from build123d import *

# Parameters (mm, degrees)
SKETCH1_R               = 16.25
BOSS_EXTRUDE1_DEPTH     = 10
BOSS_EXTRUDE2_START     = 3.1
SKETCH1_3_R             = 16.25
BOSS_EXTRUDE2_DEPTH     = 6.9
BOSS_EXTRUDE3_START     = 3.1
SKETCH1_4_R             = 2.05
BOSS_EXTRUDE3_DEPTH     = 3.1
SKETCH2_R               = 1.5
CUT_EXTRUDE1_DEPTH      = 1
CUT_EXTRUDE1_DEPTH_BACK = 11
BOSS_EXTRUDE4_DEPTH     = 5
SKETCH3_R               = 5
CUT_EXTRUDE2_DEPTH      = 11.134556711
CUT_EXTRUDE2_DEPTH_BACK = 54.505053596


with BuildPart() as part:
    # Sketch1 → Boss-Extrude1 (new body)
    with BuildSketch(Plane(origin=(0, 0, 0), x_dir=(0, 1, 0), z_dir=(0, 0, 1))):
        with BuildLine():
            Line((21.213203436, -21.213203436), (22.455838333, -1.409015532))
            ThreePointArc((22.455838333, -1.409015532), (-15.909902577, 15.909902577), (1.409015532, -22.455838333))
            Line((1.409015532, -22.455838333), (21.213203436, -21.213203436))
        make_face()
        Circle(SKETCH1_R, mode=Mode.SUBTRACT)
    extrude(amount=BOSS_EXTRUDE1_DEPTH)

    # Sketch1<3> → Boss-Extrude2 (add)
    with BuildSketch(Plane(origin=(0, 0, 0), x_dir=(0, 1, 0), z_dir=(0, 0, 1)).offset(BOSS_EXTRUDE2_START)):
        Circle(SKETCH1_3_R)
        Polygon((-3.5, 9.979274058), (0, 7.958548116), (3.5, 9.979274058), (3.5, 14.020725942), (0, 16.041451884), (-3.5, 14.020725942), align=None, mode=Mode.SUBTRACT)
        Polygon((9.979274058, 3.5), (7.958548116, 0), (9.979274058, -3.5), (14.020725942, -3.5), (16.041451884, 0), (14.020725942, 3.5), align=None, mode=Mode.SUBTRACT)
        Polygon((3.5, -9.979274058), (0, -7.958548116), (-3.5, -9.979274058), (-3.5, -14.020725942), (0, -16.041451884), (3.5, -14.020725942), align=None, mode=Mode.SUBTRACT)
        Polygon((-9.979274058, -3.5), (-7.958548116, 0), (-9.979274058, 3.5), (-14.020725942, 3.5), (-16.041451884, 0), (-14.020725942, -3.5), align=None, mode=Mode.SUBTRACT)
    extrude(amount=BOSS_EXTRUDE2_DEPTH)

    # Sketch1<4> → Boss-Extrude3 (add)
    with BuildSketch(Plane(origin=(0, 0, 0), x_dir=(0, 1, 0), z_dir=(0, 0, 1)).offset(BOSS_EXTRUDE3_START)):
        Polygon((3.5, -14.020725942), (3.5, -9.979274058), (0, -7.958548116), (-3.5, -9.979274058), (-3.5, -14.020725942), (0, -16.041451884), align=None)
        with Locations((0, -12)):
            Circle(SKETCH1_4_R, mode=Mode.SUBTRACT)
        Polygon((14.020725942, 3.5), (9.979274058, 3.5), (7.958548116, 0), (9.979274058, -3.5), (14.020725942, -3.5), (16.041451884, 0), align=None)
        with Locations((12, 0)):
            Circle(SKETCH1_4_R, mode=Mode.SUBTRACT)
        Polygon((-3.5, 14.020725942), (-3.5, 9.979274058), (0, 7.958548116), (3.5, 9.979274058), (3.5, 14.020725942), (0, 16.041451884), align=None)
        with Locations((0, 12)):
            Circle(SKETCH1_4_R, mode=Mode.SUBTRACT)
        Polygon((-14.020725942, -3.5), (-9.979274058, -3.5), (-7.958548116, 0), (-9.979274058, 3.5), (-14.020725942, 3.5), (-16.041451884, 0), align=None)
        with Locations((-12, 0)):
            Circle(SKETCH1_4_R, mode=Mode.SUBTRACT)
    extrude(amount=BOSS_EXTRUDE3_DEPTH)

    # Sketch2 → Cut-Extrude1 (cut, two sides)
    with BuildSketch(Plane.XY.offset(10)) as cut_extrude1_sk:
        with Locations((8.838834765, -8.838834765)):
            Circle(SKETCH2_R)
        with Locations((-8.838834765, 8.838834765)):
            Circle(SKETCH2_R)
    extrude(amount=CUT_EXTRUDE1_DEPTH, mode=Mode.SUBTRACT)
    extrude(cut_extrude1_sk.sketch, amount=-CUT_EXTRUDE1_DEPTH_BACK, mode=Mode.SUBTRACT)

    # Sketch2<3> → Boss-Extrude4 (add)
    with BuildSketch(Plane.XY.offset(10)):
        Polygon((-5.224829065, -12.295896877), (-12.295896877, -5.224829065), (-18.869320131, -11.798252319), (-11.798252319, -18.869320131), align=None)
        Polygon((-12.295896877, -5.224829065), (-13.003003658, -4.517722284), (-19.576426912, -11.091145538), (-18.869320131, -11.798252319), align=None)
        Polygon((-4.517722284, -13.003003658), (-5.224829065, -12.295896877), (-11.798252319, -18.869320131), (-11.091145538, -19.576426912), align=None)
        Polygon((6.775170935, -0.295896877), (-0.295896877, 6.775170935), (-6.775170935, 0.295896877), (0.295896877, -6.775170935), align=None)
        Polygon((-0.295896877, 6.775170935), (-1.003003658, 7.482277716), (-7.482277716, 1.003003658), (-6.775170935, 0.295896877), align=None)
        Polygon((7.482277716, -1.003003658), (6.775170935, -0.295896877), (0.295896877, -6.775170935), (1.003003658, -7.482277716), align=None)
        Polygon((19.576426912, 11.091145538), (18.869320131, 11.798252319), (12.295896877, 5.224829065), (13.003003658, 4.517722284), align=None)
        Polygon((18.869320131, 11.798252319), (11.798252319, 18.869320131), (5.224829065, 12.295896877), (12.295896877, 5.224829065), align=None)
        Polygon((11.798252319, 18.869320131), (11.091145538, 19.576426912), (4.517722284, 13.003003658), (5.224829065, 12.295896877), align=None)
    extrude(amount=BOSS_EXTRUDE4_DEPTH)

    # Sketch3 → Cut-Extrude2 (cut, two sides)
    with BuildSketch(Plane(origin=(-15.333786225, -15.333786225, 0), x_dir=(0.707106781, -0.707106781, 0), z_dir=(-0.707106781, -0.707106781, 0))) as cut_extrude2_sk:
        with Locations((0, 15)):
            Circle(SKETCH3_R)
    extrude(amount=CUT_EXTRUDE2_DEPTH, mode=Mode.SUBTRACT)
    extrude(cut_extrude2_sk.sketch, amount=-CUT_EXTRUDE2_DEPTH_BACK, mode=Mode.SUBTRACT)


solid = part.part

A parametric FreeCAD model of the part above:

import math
import FreeCAD as App
import Part
import Sketcher
from FreeCAD import Vector
Q = App.Units.Quantity

doc = App.newDocument("Part")
body = doc.addObject("PartDesign::Body", "Body")

# Sketch on XY plane
sketch1 = doc.addObject("Sketcher::SketchObject", "Sketch")
body.addObject(sketch1)
sketch1.AttachmentSupport = (doc.XY_Plane, [""])
sketch1.MapMode = "FlatFace"
sketch1.addGeometry(Part.LineSegment(Vector(21.213203, 21.213203, 0), Vector(1.409016, 22.455838, 0)), False)
sketch1.addGeometry(Part.ArcOfCircle(Part.Circle(Vector(0, 0, 0), Vector(0, 0, 1), 22.5), math.radians(86.409622), math.radians(363.590378)), False)
sketch1.addGeometry(Part.LineSegment(Vector(22.455838, 1.409016, 0), Vector(21.213203, 21.213203, 0)), False)
sketch1.addGeometry(Part.Circle(Vector(0, 0, 0), Vector(0, 0, 1), 16.25), False)
sketch1.addConstraint(Sketcher.Constraint("Tangent", 0, 2, 1, 1))
sketch1.addConstraint(Sketcher.Constraint("Tangent", 1, 2, 2, 1))
sketch1.addConstraint(Sketcher.Constraint("Coincident", 2, 2, 0, 1))
sketch1.addConstraint(Sketcher.Constraint("Coincident", 1, 3, -1, 1))
sketch1.addConstraint(Sketcher.Constraint("Coincident", 3, 3, -1, 1))
sketch1.addConstraint(Sketcher.Constraint("Diameter", 3, 32.5))
sketch1.addConstraint(Sketcher.Constraint("Radius", 1, 22.5))
sketch1.addConstraint(Sketcher.Constraint("DistanceY", -1, 1, 0, 2, 22.455838))
sketch1.addConstraint(Sketcher.Constraint("DistanceX", -1, 1, 1, 2, 22.455838))
pad1 = doc.addObject("PartDesign::Pad", "Pad")
body.addObject(pad1)
pad1.Profile = sketch1
pad1.Length = 10

# Sketch on XY plane
sketch2 = doc.addObject("Sketcher::SketchObject", "Sketch001")
body.addObject(sketch2)
sketch2.AttachmentSupport = (doc.XY_Plane, [""])
sketch2.MapMode = "FlatFace"
sketch2.AttachmentOffset = App.Placement(Vector(0, 0, 3.1), App.Rotation())
sketch2.addGeometry(Part.Circle(Vector(0, 0, 0), Vector(0, 0, 1), 16.25), False)
sketch2.addGeometry(Part.LineSegment(Vector(7.958548, 0, 0), Vector(9.979274, 3.5, 0)), False)
sketch2.addGeometry(Part.LineSegment(Vector(9.979274, 3.5, 0), Vector(14.020726, 3.5, 0)), False)
sketch2.addGeometry(Part.LineSegment(Vector(14.020726, 3.5, 0), Vector(16.041452, 0, 0)), False)
sketch2.addGeometry(Part.LineSegment(Vector(16.041452, 0, 0), Vector(14.020726, -3.5, 0)), False)
sketch2.addGeometry(Part.LineSegment(Vector(14.020726, -3.5, 0), Vector(9.979274, -3.5, 0)), False)
sketch2.addGeometry(Part.LineSegment(Vector(9.979274, -3.5, 0), Vector(7.958548, 0, 0)), False)
sketch2.addGeometry(Part.LineSegment(Vector(0, -7.958548, 0), Vector(3.5, -9.979274, 0)), False)
sketch2.addGeometry(Part.LineSegment(Vector(3.5, -9.979274, 0), Vector(3.5, -14.020726, 0)), False)
sketch2.addGeometry(Part.LineSegment(Vector(3.5, -14.020726, 0), Vector(0, -16.041452, 0)), False)
sketch2.addGeometry(Part.LineSegment(Vector(0, -16.041452, 0), Vector(-3.5, -14.020726, 0)), False)
sketch2.addGeometry(Part.LineSegment(Vector(-3.5, -14.020726, 0), Vector(-3.5, -9.979274, 0)), False)
sketch2.addGeometry(Part.LineSegment(Vector(-3.5, -9.979274, 0), Vector(0, -7.958548, 0)), False)
sketch2.addGeometry(Part.LineSegment(Vector(-7.958548, 0, 0), Vector(-9.979274, -3.5, 0)), False)
sketch2.addGeometry(Part.LineSegment(Vector(-9.979274, -3.5, 0), Vector(-14.020726, -3.5, 0)), False)
sketch2.addGeometry(Part.LineSegment(Vector(-14.020726, -3.5, 0), Vector(-16.041452, 0, 0)), False)
sketch2.addGeometry(Part.LineSegment(Vector(-16.041452, 0, 0), Vector(-14.020726, 3.5, 0)), False)
sketch2.addGeometry(Part.LineSegment(Vector(-14.020726, 3.5, 0), Vector(-9.979274, 3.5, 0)), False)
sketch2.addGeometry(Part.LineSegment(Vector(-9.979274, 3.5, 0), Vector(-7.958548, 0, 0)), False)
sketch2.addGeometry(Part.LineSegment(Vector(0, 7.958548, 0), Vector(-3.5, 9.979274, 0)), False)
sketch2.addGeometry(Part.LineSegment(Vector(-3.5, 9.979274, 0), Vector(-3.5, 14.020726, 0)), False)
sketch2.addGeometry(Part.LineSegment(Vector(-3.5, 14.020726, 0), Vector(0, 16.041452, 0)), False)
sketch2.addGeometry(Part.LineSegment(Vector(0, 16.041452, 0), Vector(3.5, 14.020726, 0)), False)
sketch2.addGeometry(Part.LineSegment(Vector(3.5, 14.020726, 0), Vector(3.5, 9.979274, 0)), False)
sketch2.addGeometry(Part.LineSegment(Vector(3.5, 9.979274, 0), Vector(0, 7.958548, 0)), False)
sketch2.addConstraint(Sketcher.Constraint("Coincident", 1, 2, 2, 1))
sketch2.addConstraint(Sketcher.Constraint("Coincident", 2, 2, 3, 1))
sketch2.addConstraint(Sketcher.Constraint("Coincident", 3, 2, 4, 1))
sketch2.addConstraint(Sketcher.Constraint("Coincident", 4, 2, 5, 1))
sketch2.addConstraint(Sketcher.Constraint("Coincident", 5, 2, 6, 1))
sketch2.addConstraint(Sketcher.Constraint("Coincident", 6, 2, 1, 1))
sketch2.addConstraint(Sketcher.Constraint("Coincident", 7, 2, 8, 1))
sketch2.addConstraint(Sketcher.Constraint("Coincident", 8, 2, 9, 1))
sketch2.addConstraint(Sketcher.Constraint("Coincident", 9, 2, 10, 1))
sketch2.addConstraint(Sketcher.Constraint("Coincident", 10, 2, 11, 1))
sketch2.addConstraint(Sketcher.Constraint("Coincident", 11, 2, 12, 1))
sketch2.addConstraint(Sketcher.Constraint("Coincident", 12, 2, 7, 1))
sketch2.addConstraint(Sketcher.Constraint("Coincident", 13, 2, 14, 1))
sketch2.addConstraint(Sketcher.Constraint("Coincident", 14, 2, 15, 1))
sketch2.addConstraint(Sketcher.Constraint("Coincident", 15, 2, 16, 1))
sketch2.addConstraint(Sketcher.Constraint("Coincident", 16, 2, 17, 1))
sketch2.addConstraint(Sketcher.Constraint("Coincident", 17, 2, 18, 1))
sketch2.addConstraint(Sketcher.Constraint("Coincident", 18, 2, 13, 1))
sketch2.addConstraint(Sketcher.Constraint("Coincident", 19, 2, 20, 1))
sketch2.addConstraint(Sketcher.Constraint("Coincident", 20, 2, 21, 1))
sketch2.addConstraint(Sketcher.Constraint("Coincident", 21, 2, 22, 1))
sketch2.addConstraint(Sketcher.Constraint("Coincident", 22, 2, 23, 1))
sketch2.addConstraint(Sketcher.Constraint("Coincident", 23, 2, 24, 1))
sketch2.addConstraint(Sketcher.Constraint("Coincident", 24, 2, 19, 1))
sketch2.addConstraint(Sketcher.Constraint("Horizontal", 2))
sketch2.addConstraint(Sketcher.Constraint("Horizontal", 5))
sketch2.addConstraint(Sketcher.Constraint("Vertical", 8))
sketch2.addConstraint(Sketcher.Constraint("Vertical", 11))
sketch2.addConstraint(Sketcher.Constraint("Horizontal", 14))
sketch2.addConstraint(Sketcher.Constraint("Horizontal", 17))
sketch2.addConstraint(Sketcher.Constraint("Vertical", 20))
sketch2.addConstraint(Sketcher.Constraint("Vertical", 23))
sketch2.addConstraint(Sketcher.Constraint("Coincident", 0, 3, -1, 1))
sketch2.addConstraint(Sketcher.Constraint("Symmetric", 1, 2, 13, 2, -1, 1))
sketch2.addConstraint(Sketcher.Constraint("Symmetric", 3, 2, 15, 2, -1, 1))
sketch2.addConstraint(Sketcher.Constraint("Symmetric", 4, 2, 16, 2, -1, 1))
sketch2.addConstraint(Sketcher.Constraint("Symmetric", 6, 2, 18, 2, -1, 1))
sketch2.addConstraint(Sketcher.Constraint("Symmetric", 7, 2, 19, 2, -1, 1))
sketch2.addConstraint(Sketcher.Constraint("Symmetric", 9, 2, 21, 2, -1, 1))
sketch2.addConstraint(Sketcher.Constraint("Symmetric", 10, 2, 22, 2, -1, 1))
sketch2.addConstraint(Sketcher.Constraint("Symmetric", 12, 2, 24, 2, -1, 1))
sketch2.addConstraint(Sketcher.Constraint("Symmetric", 8, 2, 10, 2, -2))
sketch2.addConstraint(Sketcher.Constraint("Symmetric", 5, 2, 13, 2, -2))
sketch2.addConstraint(Sketcher.Constraint("PointOnObject", 3, 2, -1))
sketch2.addConstraint(Sketcher.Constraint("PointOnObject", 6, 2, -1))
sketch2.addConstraint(Sketcher.Constraint("PointOnObject", 9, 2, -2))
sketch2.addConstraint(Sketcher.Constraint("PointOnObject", 12, 2, -2))
sketch2.addConstraint(Sketcher.Constraint("Parallel", 1, 4))
sketch2.addConstraint(Sketcher.Constraint("Parallel", 3, 6))
sketch2.addConstraint(Sketcher.Constraint("Perpendicular", 4, 7))
sketch2.addConstraint(Sketcher.Constraint("Perpendicular", 6, 9))
sketch2.addConstraint(Sketcher.Constraint("Parallel", 9, 12))
sketch2.addConstraint(Sketcher.Constraint("Perpendicular", 12, 15))
sketch2.addConstraint(Sketcher.Constraint("Parallel", 15, 18))
sketch2.addConstraint(Sketcher.Constraint("Perpendicular", 18, 21))
sketch2.addConstraint(Sketcher.Constraint("Parallel", 21, 24))
sketch2.addConstraint(Sketcher.Constraint("Equal", 17, 8))
sketch2.addConstraint(Sketcher.Constraint("Equal", 6, 7))
sketch2.addConstraint(Sketcher.Constraint("Diameter", 0, 32.5))
sketch2.addConstraint(Sketcher.Constraint("Angle", 1, Q("60 deg")))
sketch2.addConstraint(Sketcher.Constraint("DistanceY", 4, 2, 2, 2, 7.0))
sketch2.addConstraint(Sketcher.Constraint("DistanceX", 2, 1, 2, 2, 4.041452))
sketch2.addConstraint(Sketcher.Constraint("DistanceX", -1, 1, 3, 2, 16.041452))
sketch2.addConstraint(Sketcher.Constraint("DistanceY", 9, 2, -1, 1, 16.041452))
pad2 = doc.addObject("PartDesign::Pad", "Pad001")
body.addObject(pad2)
pad2.Profile = sketch2
pad2.Length = 6.9

# Sketch on XY plane
sketch3 = doc.addObject("Sketcher::SketchObject", "Sketch002")
body.addObject(sketch3)
sketch3.AttachmentSupport = (doc.XY_Plane, [""])
sketch3.MapMode = "FlatFace"
sketch3.AttachmentOffset = App.Placement(Vector(0, 0, 3.1), App.Rotation())
sketch3.addGeometry(Part.LineSegment(Vector(14.020726, 3.5, 0), Vector(9.979274, 3.5, 0)), False)
sketch3.addGeometry(Part.LineSegment(Vector(9.979274, 3.5, 0), Vector(7.958548, 0, 0)), False)
sketch3.addGeometry(Part.LineSegment(Vector(7.958548, 0, 0), Vector(9.979274, -3.5, 0)), False)
sketch3.addGeometry(Part.LineSegment(Vector(9.979274, -3.5, 0), Vector(14.020726, -3.5, 0)), False)
sketch3.addGeometry(Part.LineSegment(Vector(14.020726, -3.5, 0), Vector(16.041452, 0, 0)), False)
sketch3.addGeometry(Part.LineSegment(Vector(16.041452, 0, 0), Vector(14.020726, 3.5, 0)), False)
sketch3.addGeometry(Part.Circle(Vector(12, 0, 0), Vector(0, 0, 1), 2.05), False)
sketch3.addGeometry(Part.LineSegment(Vector(-3.5, 14.020726, 0), Vector(-3.5, 9.979274, 0)), False)
sketch3.addGeometry(Part.LineSegment(Vector(-3.5, 9.979274, 0), Vector(0, 7.958548, 0)), False)
sketch3.addGeometry(Part.LineSegment(Vector(0, 7.958548, 0), Vector(3.5, 9.979274, 0)), False)
sketch3.addGeometry(Part.LineSegment(Vector(3.5, 9.979274, 0), Vector(3.5, 14.020726, 0)), False)
sketch3.addGeometry(Part.LineSegment(Vector(3.5, 14.020726, 0), Vector(0, 16.041452, 0)), False)
sketch3.addGeometry(Part.LineSegment(Vector(0, 16.041452, 0), Vector(-3.5, 14.020726, 0)), False)
sketch3.addGeometry(Part.Circle(Vector(0, 12, 0), Vector(0, 0, 1), 2.05), False)
sketch3.addGeometry(Part.LineSegment(Vector(-14.020726, -3.5, 0), Vector(-9.979274, -3.5, 0)), False)
sketch3.addGeometry(Part.LineSegment(Vector(-9.979274, -3.5, 0), Vector(-7.958548, 0, 0)), False)
sketch3.addGeometry(Part.LineSegment(Vector(-7.958548, 0, 0), Vector(-9.979274, 3.5, 0)), False)
sketch3.addGeometry(Part.LineSegment(Vector(-9.979274, 3.5, 0), Vector(-14.020726, 3.5, 0)), False)
sketch3.addGeometry(Part.LineSegment(Vector(-14.020726, 3.5, 0), Vector(-16.041452, 0, 0)), False)
sketch3.addGeometry(Part.LineSegment(Vector(-16.041452, 0, 0), Vector(-14.020726, -3.5, 0)), False)
sketch3.addGeometry(Part.Circle(Vector(-12, 0, 0), Vector(0, 0, 1), 2.05), False)
sketch3.addGeometry(Part.LineSegment(Vector(3.5, -14.020726, 0), Vector(3.5, -9.979274, 0)), False)
sketch3.addGeometry(Part.LineSegment(Vector(3.5, -9.979274, 0), Vector(0, -7.958548, 0)), False)
sketch3.addGeometry(Part.LineSegment(Vector(0, -7.958548, 0), Vector(-3.5, -9.979274, 0)), False)
sketch3.addGeometry(Part.LineSegment(Vector(-3.5, -9.979274, 0), Vector(-3.5, -14.020726, 0)), False)
sketch3.addGeometry(Part.LineSegment(Vector(-3.5, -14.020726, 0), Vector(0, -16.041452, 0)), False)
sketch3.addGeometry(Part.LineSegment(Vector(0, -16.041452, 0), Vector(3.5, -14.020726, 0)), False)
sketch3.addGeometry(Part.Circle(Vector(0, -12, 0), Vector(0, 0, 1), 2.05), False)
sketch3.addConstraint(Sketcher.Constraint("Coincident", 0, 2, 1, 1))
sketch3.addConstraint(Sketcher.Constraint("Coincident", 1, 2, 2, 1))
sketch3.addConstraint(Sketcher.Constraint("Coincident", 2, 2, 3, 1))
sketch3.addConstraint(Sketcher.Constraint("Coincident", 3, 2, 4, 1))
sketch3.addConstraint(Sketcher.Constraint("Coincident", 4, 2, 5, 1))
sketch3.addConstraint(Sketcher.Constraint("Coincident", 5, 2, 0, 1))
sketch3.addConstraint(Sketcher.Constraint("Coincident", 7, 2, 8, 1))
sketch3.addConstraint(Sketcher.Constraint("Coincident", 8, 2, 9, 1))
sketch3.addConstraint(Sketcher.Constraint("Coincident", 9, 2, 10, 1))
sketch3.addConstraint(Sketcher.Constraint("Coincident", 10, 2, 11, 1))
sketch3.addConstraint(Sketcher.Constraint("Coincident", 11, 2, 12, 1))
sketch3.addConstraint(Sketcher.Constraint("Coincident", 12, 2, 7, 1))
sketch3.addConstraint(Sketcher.Constraint("Coincident", 14, 2, 15, 1))
sketch3.addConstraint(Sketcher.Constraint("Coincident", 15, 2, 16, 1))
sketch3.addConstraint(Sketcher.Constraint("Coincident", 16, 2, 17, 1))
sketch3.addConstraint(Sketcher.Constraint("Coincident", 17, 2, 18, 1))
sketch3.addConstraint(Sketcher.Constraint("Coincident", 18, 2, 19, 1))
sketch3.addConstraint(Sketcher.Constraint("Coincident", 19, 2, 14, 1))
sketch3.addConstraint(Sketcher.Constraint("Coincident", 21, 2, 22, 1))
sketch3.addConstraint(Sketcher.Constraint("Coincident", 22, 2, 23, 1))
sketch3.addConstraint(Sketcher.Constraint("Coincident", 23, 2, 24, 1))
sketch3.addConstraint(Sketcher.Constraint("Coincident", 24, 2, 25, 1))
sketch3.addConstraint(Sketcher.Constraint("Coincident", 25, 2, 26, 1))
sketch3.addConstraint(Sketcher.Constraint("Coincident", 26, 2, 21, 1))
sketch3.addConstraint(Sketcher.Constraint("Horizontal", 0))
sketch3.addConstraint(Sketcher.Constraint("Horizontal", 3))
sketch3.addConstraint(Sketcher.Constraint("Vertical", 7))
sketch3.addConstraint(Sketcher.Constraint("Vertical", 10))
sketch3.addConstraint(Sketcher.Constraint("Horizontal", 14))
sketch3.addConstraint(Sketcher.Constraint("Horizontal", 17))
sketch3.addConstraint(Sketcher.Constraint("Vertical", 21))
sketch3.addConstraint(Sketcher.Constraint("Vertical", 24))
sketch3.addConstraint(Sketcher.Constraint("Equal", 6, 13))
sketch3.addConstraint(Sketcher.Constraint("Equal", 13, 20))
sketch3.addConstraint(Sketcher.Constraint("Equal", 20, 27))
sketch3.addConstraint(Sketcher.Constraint("Symmetric", 6, 3, 20, 3, -1, 1))
sketch3.addConstraint(Sketcher.Constraint("Symmetric", 13, 3, 27, 3, -1, 1))
sketch3.addConstraint(Sketcher.Constraint("Symmetric", 0, 2, 14, 2, -1, 1))
sketch3.addConstraint(Sketcher.Constraint("Symmetric", 1, 2, 15, 2, -1, 1))
sketch3.addConstraint(Sketcher.Constraint("Symmetric", 2, 2, 16, 2, -1, 1))
sketch3.addConstraint(Sketcher.Constraint("Symmetric", 4, 2, 18, 2, -1, 1))
sketch3.addConstraint(Sketcher.Constraint("Symmetric", 7, 2, 21, 2, -1, 1))
sketch3.addConstraint(Sketcher.Constraint("Symmetric", 8, 2, 22, 2, -1, 1))
sketch3.addConstraint(Sketcher.Constraint("Symmetric", 9, 2, 23, 2, -1, 1))
sketch3.addConstraint(Sketcher.Constraint("Symmetric", 11, 2, 25, 2, -1, 1))
sketch3.addConstraint(Sketcher.Constraint("Symmetric", 7, 2, 9, 2, -2))
sketch3.addConstraint(Sketcher.Constraint("Symmetric", 2, 2, 14, 2, -2))
sketch3.addConstraint(Sketcher.Constraint("PointOnObject", 6, 3, -1))
sketch3.addConstraint(Sketcher.Constraint("PointOnObject", 13, 3, -2))
sketch3.addConstraint(Sketcher.Constraint("PointOnObject", 1, 2, -1))
sketch3.addConstraint(Sketcher.Constraint("PointOnObject", 4, 2, -1))
sketch3.addConstraint(Sketcher.Constraint("PointOnObject", 8, 2, -2))
sketch3.addConstraint(Sketcher.Constraint("PointOnObject", 11, 2, -2))
sketch3.addConstraint(Sketcher.Constraint("Parallel", 1, 4))
sketch3.addConstraint(Sketcher.Constraint("Parallel", 2, 5))
sketch3.addConstraint(Sketcher.Constraint("Perpendicular", 4, 8))
sketch3.addConstraint(Sketcher.Constraint("Parallel", 8, 11))
sketch3.addConstraint(Sketcher.Constraint("Parallel", 9, 12))
sketch3.addConstraint(Sketcher.Constraint("Parallel", 15, 18))
sketch3.addConstraint(Sketcher.Constraint("Parallel", 16, 19))
sketch3.addConstraint(Sketcher.Constraint("Parallel", 22, 25))
sketch3.addConstraint(Sketcher.Constraint("Parallel", 23, 26))
sketch3.addConstraint(Sketcher.Constraint("Equal", 17, 7))
sketch3.addConstraint(Sketcher.Constraint("Equal", 5, 8))
sketch3.addConstraint(Sketcher.Constraint("Diameter", 6, 4.1))
sketch3.addConstraint(Sketcher.Constraint("Angle", 1, Q("-120 deg")))
sketch3.addConstraint(Sketcher.Constraint("DistanceX", -1, 1, 6, 3, 12.0))
sketch3.addConstraint(Sketcher.Constraint("DistanceY", -1, 1, 13, 3, 12.0))
sketch3.addConstraint(Sketcher.Constraint("DistanceY", 2, 2, 0, 2, 7.0))
sketch3.addConstraint(Sketcher.Constraint("DistanceX", 0, 2, 0, 1, 4.041452))
sketch3.addConstraint(Sketcher.Constraint("DistanceX", -1, 1, 1, 2, 7.958548))
sketch3.addConstraint(Sketcher.Constraint("DistanceY", -1, 1, 8, 2, 7.958548))
pad3 = doc.addObject("PartDesign::Pad", "Pad002")
body.addObject(pad3)
pad3.Profile = sketch3
pad3.Length = 3.1

# Sketch on XY plane
sketch4 = doc.addObject("Sketcher::SketchObject", "Sketch003")
body.addObject(sketch4)
sketch4.AttachmentSupport = (doc.XY_Plane, [""])
sketch4.MapMode = "FlatFace"
sketch4.AttachmentOffset = App.Placement(Vector(0, 0, 10), App.Rotation())
sketch4.addGeometry(Part.Circle(Vector(8.838835, -8.838835, 0), Vector(0, 0, 1), 1.5), False)
sketch4.addGeometry(Part.Circle(Vector(-8.838835, 8.838835, 0), Vector(0, 0, 1), 1.5), False)
sketch4.addConstraint(Sketcher.Constraint("Equal", 0, 1))
sketch4.addConstraint(Sketcher.Constraint("Symmetric", 0, 3, 1, 3, -1, 1))
sketch4.addConstraint(Sketcher.Constraint("Diameter", 0, 3.0))
sketch4.addConstraint(Sketcher.Constraint("DistanceX", 1, 3, 0, 3, 17.67767))
sketch4.addConstraint(Sketcher.Constraint("DistanceY", 0, 3, 1, 3, 17.67767))
pocket1 = doc.addObject("PartDesign::Pocket", "Pocket")
body.addObject(pocket1)
pocket1.Profile = sketch4
pocket1.Type = "ThroughAll"
pocket1.Midplane = True

# Sketch on XY plane
sketch5 = doc.addObject("Sketcher::SketchObject", "Sketch004")
body.addObject(sketch5)
sketch5.AttachmentSupport = (doc.XY_Plane, [""])
sketch5.MapMode = "FlatFace"
sketch5.AttachmentOffset = App.Placement(Vector(0, 0, 10), App.Rotation())
sketch5.addGeometry(Part.LineSegment(Vector(-13.003004, -4.517722, 0), Vector(-19.576427, -11.091146, 0)), False)
sketch5.addGeometry(Part.LineSegment(Vector(-19.576427, -11.091146, 0), Vector(-11.091146, -19.576427, 0)), False)
sketch5.addGeometry(Part.LineSegment(Vector(-11.091146, -19.576427, 0), Vector(-4.517722, -13.003004, 0)), False)
sketch5.addGeometry(Part.LineSegment(Vector(-4.517722, -13.003004, 0), Vector(-13.003004, -4.517722, 0)), False)
sketch5.addGeometry(Part.LineSegment(Vector(-1.003004, 7.482278, 0), Vector(-7.482278, 1.003004, 0)), False)
sketch5.addGeometry(Part.LineSegment(Vector(-7.482278, 1.003004, 0), Vector(1.003004, -7.482278, 0)), False)
sketch5.addGeometry(Part.LineSegment(Vector(1.003004, -7.482278, 0), Vector(7.482278, -1.003004, 0)), False)
sketch5.addGeometry(Part.LineSegment(Vector(7.482278, -1.003004, 0), Vector(-1.003004, 7.482278, 0)), False)
sketch5.addGeometry(Part.LineSegment(Vector(19.576427, 11.091146, 0), Vector(11.091146, 19.576427, 0)), False)
sketch5.addGeometry(Part.LineSegment(Vector(11.091146, 19.576427, 0), Vector(4.517722, 13.003004, 0)), False)
sketch5.addGeometry(Part.LineSegment(Vector(4.517722, 13.003004, 0), Vector(13.003004, 4.517722, 0)), False)
sketch5.addGeometry(Part.LineSegment(Vector(13.003004, 4.517722, 0), Vector(19.576427, 11.091146, 0)), False)
sketch5.addConstraint(Sketcher.Constraint("Coincident", 0, 2, 1, 1))
sketch5.addConstraint(Sketcher.Constraint("Coincident", 1, 2, 2, 1))
sketch5.addConstraint(Sketcher.Constraint("Coincident", 2, 2, 3, 1))
sketch5.addConstraint(Sketcher.Constraint("Coincident", 3, 2, 0, 1))
sketch5.addConstraint(Sketcher.Constraint("Coincident", 4, 2, 5, 1))
sketch5.addConstraint(Sketcher.Constraint("Coincident", 5, 2, 6, 1))
sketch5.addConstraint(Sketcher.Constraint("Coincident", 6, 2, 7, 1))
sketch5.addConstraint(Sketcher.Constraint("Coincident", 7, 2, 4, 1))
sketch5.addConstraint(Sketcher.Constraint("Coincident", 8, 2, 9, 1))
sketch5.addConstraint(Sketcher.Constraint("Coincident", 9, 2, 10, 1))
sketch5.addConstraint(Sketcher.Constraint("Coincident", 10, 2, 11, 1))
sketch5.addConstraint(Sketcher.Constraint("Coincident", 11, 2, 8, 1))
sketch5.addConstraint(Sketcher.Constraint("Symmetric", 4, 2, 6, 2, -1, 1))
sketch5.addConstraint(Sketcher.Constraint("Symmetric", 5, 2, 7, 2, -1, 1))
sketch5.addConstraint(Sketcher.Constraint("Symmetric", 1, 2, 8, 2, -1, 1))
sketch5.addConstraint(Sketcher.Constraint("Symmetric", 2, 2, 9, 2, -1, 1))
sketch5.addConstraint(Sketcher.Constraint("Symmetric", 3, 2, 10, 2, -1, 1))
sketch5.addConstraint(Sketcher.Constraint("Symmetric", 0, 2, 11, 2, -1, 1))
sketch5.addConstraint(Sketcher.Constraint("Perpendicular", 0, 1))
sketch5.addConstraint(Sketcher.Constraint("Perpendicular", 1, 2))
sketch5.addConstraint(Sketcher.Constraint("Perpendicular", 2, 3))
sketch5.addConstraint(Sketcher.Constraint("Perpendicular", 3, 4))
sketch5.addConstraint(Sketcher.Constraint("Perpendicular", 4, 5))
sketch5.addConstraint(Sketcher.Constraint("Equal", 3, 5))
sketch5.addConstraint(Sketcher.Constraint("Angle", 0, Q("-135 deg")))
sketch5.addConstraint(Sketcher.Constraint("Distance", 1, 12.0))
sketch5.addConstraint(Sketcher.Constraint("DistanceX", 2, 2, 6, 2, 12.0))
sketch5.addConstraint(Sketcher.Constraint("DistanceY", 2, 2, 6, 2, 12.0))
sketch5.addConstraint(Sketcher.Constraint("DistanceY", 2, 2, 0, 2, 1.911858))
sketch5.addConstraint(Sketcher.Constraint("DistanceX", 0, 2, 4, 2, 12.094149))
pad4 = doc.addObject("PartDesign::Pad", "Pad003")
body.addObject(pad4)
pad4.Profile = sketch5
pad4.Length = 5

# Sketch on an angled plane
sketch6 = doc.addObject("Sketcher::SketchObject", "Sketch005")
body.addObject(sketch6)
sketch6.Placement = App.Placement(Vector(-15.333786, -15.333786, 0), App.Rotation(Vector(0.707106781, -0.707106781, 0), Vector(0, 0, 0.999999999), Vector(-0.707106781, -0.707106781, 0), "ZXY"))
sketch6.addGeometry(Part.Circle(Vector(0, 15, 0), Vector(0, 0, 1), 5), False)
sketch6.addConstraint(Sketcher.Constraint("PointOnObject", 0, 3, -2))
sketch6.addConstraint(Sketcher.Constraint("Diameter", 0, 10.0))
sketch6.addConstraint(Sketcher.Constraint("DistanceY", -1, 1, 0, 3, 15.0))
pocket2 = doc.addObject("PartDesign::Pocket", "Pocket001")
body.addObject(pocket2)
pocket2.Profile = sketch6
pocket2.Type = "ThroughAll"
pocket2.Midplane = True

doc.recompute()
